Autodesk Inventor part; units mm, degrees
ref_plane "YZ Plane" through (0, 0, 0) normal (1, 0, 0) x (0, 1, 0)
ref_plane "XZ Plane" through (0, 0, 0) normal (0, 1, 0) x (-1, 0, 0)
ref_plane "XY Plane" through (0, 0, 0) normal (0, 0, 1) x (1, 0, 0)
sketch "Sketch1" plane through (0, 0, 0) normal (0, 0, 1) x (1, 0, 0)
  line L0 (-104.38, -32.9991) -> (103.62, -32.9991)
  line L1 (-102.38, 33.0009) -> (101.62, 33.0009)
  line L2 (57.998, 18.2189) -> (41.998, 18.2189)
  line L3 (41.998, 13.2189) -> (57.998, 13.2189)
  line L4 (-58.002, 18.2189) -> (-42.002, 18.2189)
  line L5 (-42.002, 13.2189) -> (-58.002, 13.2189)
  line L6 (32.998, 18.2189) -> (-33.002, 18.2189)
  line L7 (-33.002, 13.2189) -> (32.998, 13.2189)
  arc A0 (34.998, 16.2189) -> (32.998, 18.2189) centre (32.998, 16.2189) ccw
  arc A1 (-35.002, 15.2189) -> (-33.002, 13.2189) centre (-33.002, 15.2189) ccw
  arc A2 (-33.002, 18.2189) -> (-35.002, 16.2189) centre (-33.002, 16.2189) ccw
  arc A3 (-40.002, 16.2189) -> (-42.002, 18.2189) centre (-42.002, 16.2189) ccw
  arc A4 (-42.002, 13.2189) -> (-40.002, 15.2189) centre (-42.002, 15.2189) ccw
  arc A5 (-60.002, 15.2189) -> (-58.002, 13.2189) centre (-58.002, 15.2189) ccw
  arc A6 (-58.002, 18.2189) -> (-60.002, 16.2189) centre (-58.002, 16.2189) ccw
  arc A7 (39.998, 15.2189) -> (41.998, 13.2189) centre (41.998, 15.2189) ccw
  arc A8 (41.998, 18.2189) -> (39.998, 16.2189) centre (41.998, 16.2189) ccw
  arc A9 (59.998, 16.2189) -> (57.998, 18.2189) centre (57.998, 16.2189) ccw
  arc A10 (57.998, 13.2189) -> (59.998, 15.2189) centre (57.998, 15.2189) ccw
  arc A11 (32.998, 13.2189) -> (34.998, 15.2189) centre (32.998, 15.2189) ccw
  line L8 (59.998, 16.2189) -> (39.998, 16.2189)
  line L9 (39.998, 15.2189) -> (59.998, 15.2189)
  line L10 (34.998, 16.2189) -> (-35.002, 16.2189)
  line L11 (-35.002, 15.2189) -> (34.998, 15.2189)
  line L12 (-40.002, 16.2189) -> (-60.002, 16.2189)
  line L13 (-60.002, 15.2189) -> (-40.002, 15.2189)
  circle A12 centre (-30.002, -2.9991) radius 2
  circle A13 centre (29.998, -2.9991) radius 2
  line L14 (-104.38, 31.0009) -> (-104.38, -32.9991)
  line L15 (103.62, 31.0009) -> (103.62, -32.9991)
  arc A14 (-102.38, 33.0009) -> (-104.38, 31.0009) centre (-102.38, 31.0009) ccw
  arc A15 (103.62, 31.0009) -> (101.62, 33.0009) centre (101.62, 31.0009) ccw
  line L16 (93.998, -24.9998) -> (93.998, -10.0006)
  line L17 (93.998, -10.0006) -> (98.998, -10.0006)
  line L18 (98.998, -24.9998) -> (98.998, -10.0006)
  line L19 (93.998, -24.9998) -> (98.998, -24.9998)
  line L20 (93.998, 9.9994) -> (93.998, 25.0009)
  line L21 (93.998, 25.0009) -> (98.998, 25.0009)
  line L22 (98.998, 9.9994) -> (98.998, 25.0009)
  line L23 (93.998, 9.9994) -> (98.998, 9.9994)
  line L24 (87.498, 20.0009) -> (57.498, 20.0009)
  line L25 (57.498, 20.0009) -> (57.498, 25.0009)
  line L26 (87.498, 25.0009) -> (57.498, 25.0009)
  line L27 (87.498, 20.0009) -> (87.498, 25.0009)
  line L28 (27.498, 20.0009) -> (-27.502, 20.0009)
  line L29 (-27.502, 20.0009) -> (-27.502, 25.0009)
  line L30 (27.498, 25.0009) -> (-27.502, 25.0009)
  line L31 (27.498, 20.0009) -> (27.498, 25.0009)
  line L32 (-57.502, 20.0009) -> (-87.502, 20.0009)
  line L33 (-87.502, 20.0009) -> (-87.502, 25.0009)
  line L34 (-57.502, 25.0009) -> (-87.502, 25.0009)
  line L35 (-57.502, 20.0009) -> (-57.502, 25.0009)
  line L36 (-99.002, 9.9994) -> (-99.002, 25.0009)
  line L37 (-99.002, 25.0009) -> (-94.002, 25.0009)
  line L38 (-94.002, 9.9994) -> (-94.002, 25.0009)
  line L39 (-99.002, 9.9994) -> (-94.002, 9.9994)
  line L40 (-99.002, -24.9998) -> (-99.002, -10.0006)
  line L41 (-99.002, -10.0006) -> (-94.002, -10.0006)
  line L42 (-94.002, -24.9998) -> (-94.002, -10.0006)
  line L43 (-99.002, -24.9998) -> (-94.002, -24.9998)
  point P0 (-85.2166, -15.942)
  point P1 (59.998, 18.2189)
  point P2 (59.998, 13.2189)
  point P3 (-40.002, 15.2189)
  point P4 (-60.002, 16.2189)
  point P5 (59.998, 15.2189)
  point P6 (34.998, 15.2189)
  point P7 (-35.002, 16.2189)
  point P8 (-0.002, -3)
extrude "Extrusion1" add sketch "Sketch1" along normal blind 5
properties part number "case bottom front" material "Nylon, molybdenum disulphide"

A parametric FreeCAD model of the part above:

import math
import FreeCAD as App
import Part
import Sketcher

V = App.Vector

doc = App.newDocument("Part")
body = doc.addObject("PartDesign::Body", "Body")

sketch1 = body.newObject("Sketcher::SketchObject", "Sketch")
sketch1.AttachmentSupport = (doc.getObject("XY_Plane"), [""])
sketch1.MapMode = "FlatFace"
sketch1.addGeometry(Part.LineSegment(V(-104.38, 31.0009, 0), V(-104.38, -32.9991, 0)), False)
sketch1.addGeometry(Part.LineSegment(V(-104.38, -32.9991, 0), V(103.62, -32.9991, 0)), False)
sketch1.addGeometry(Part.LineSegment(V(103.62, -32.9991, 0), V(103.62, 31.0009, 0)), False)
sketch1.addGeometry(Part.ArcOfCircle(Part.Circle(V(101.62, 31.0009, 0), V(0, 0, 1), 2), math.radians(0), math.radians(90)), False)
sketch1.addGeometry(Part.LineSegment(V(101.62, 33.0009, 0), V(-102.38, 33.0009, 0)), False)
sketch1.addGeometry(Part.ArcOfCircle(Part.Circle(V(-102.38, 31.0009, 0), V(0, 0, 1), 2), math.radians(90), math.radians(180)), False)
sketch1.addGeometry(Part.LineSegment(V(-94.002, -24.9998, 0), V(-99.002, -24.9998, 0)), False)
sketch1.addGeometry(Part.LineSegment(V(-99.002, -24.9998, 0), V(-99.002, -10.0006, 0)), False)
sketch1.addGeometry(Part.LineSegment(V(-99.002, -10.0006, 0), V(-94.002, -10.0006, 0)), False)
sketch1.addGeometry(Part.LineSegment(V(-94.002, -10.0006, 0), V(-94.002, -24.9998, 0)), False)
sketch1.addGeometry(Part.Circle(V(-30.002, -2.9991, 0), V(0, 0, 1), 2), False)
sketch1.addGeometry(Part.LineSegment(V(98.998, -24.9998, 0), V(93.998, -24.9998, 0)), False)
sketch1.addGeometry(Part.LineSegment(V(93.998, -24.9998, 0), V(93.998, -10.0006, 0)), False)
sketch1.addGeometry(Part.LineSegment(V(93.998, -10.0006, 0), V(98.998, -10.0006, 0)), False)
sketch1.addGeometry(Part.LineSegment(V(98.998, -10.0006, 0), V(98.998, -24.9998, 0)), False)
sketch1.addGeometry(Part.Circle(V(29.998, -2.9991, 0), V(0, 0, 1), 2), False)
sketch1.addGeometry(Part.ArcOfCircle(Part.Circle(V(-42.002, 15.2189, 0), V(0, 0, 1), 2), math.radians(-90), math.radians(0)), False)
sketch1.addGeometry(Part.LineSegment(V(-42.002, 13.2189, 0), V(-58.002, 13.2189, 0)), False)
sketch1.addGeometry(Part.ArcOfCircle(Part.Circle(V(-58.002, 15.2189, 0), V(0, 0, 1), 2), math.radians(180), math.radians(270)), False)
sketch1.addGeometry(Part.LineSegment(V(-60.002, 15.2189, 0), V(-40.002, 15.2189, 0)), False)
sketch1.addGeometry(Part.LineSegment(V(-94.002, 9.9994, 0), V(-99.002, 9.9994, 0)), False)
sketch1.addGeometry(Part.LineSegment(V(-99.002, 9.9994, 0), V(-99.002, 25.0009, 0)), False)
sketch1.addGeometry(Part.LineSegment(V(-99.002, 25.0009, 0), V(-94.002, 25.0009, 0)), False)
sketch1.addGeometry(Part.LineSegment(V(-94.002, 25.0009, 0), V(-94.002, 9.9994, 0)), False)
sketch1.addGeometry(Part.LineSegment(V(-57.502, 25.0009, 0), V(-57.502, 20.0009, 0)), False)
sketch1.addGeometry(Part.LineSegment(V(-57.502, 20.0009, 0), V(-87.502, 20.0009, 0)), False)
sketch1.addGeometry(Part.LineSegment(V(-87.502, 20.0009, 0), V(-87.502, 25.0009, 0)), False)
sketch1.addGeometry(Part.LineSegment(V(-87.502, 25.0009, 0), V(-57.502, 25.0009, 0)), False)
sketch1.addGeometry(Part.ArcOfCircle(Part.Circle(V(-58.002, 16.2189, 0), V(0, 0, 1), 2), math.radians(90), math.radians(180)), False)
sketch1.addGeometry(Part.LineSegment(V(-58.002, 18.2189, 0), V(-42.002, 18.2189, 0)), False)
sketch1.addGeometry(Part.ArcOfCircle(Part.Circle(V(-42.002, 16.2189, 0), V(0, 0, 1), 2), math.radians(0), math.radians(90)), False)
sketch1.addGeometry(Part.LineSegment(V(-40.002, 16.2189, 0), V(-60.002, 16.2189, 0)), False)
sketch1.addGeometry(Part.LineSegment(V(32.998, 13.2189, 0), V(-33.002, 13.2189, 0)), False)
sketch1.addGeometry(Part.ArcOfCircle(Part.Circle(V(-33.002, 15.2189, 0), V(0, 0, 1), 2), math.radians(180), math.radians(270)), False)
sketch1.addGeometry(Part.LineSegment(V(-35.002, 15.2189, 0), V(34.998, 15.2189, 0)), False)
sketch1.addGeometry(Part.ArcOfCircle(Part.Circle(V(32.998, 15.2189, 0), V(0, 0, 1), 2), math.radians(-90), math.radians(0)), False)
sketch1.addGeometry(Part.LineSegment(V(57.998, 13.2189, 0), V(41.998, 13.2189, 0)), False)
sketch1.addGeometry(Part.ArcOfCircle(Part.Circle(V(41.998, 15.2189, 0), V(0, 0, 1), 2), math.radians(180), math.radians(270)), False)
sketch1.addGeometry(Part.LineSegment(V(39.998, 15.2189, 0), V(59.998, 15.2189, 0)), False)
sketch1.addGeometry(Part.ArcOfCircle(Part.Circle(V(57.998, 15.2189, 0), V(0, 0, 1), 2), math.radians(-90), math.radians(0)), False)
sketch1.addGeometry(Part.LineSegment(V(-33.002, 18.2189, 0), V(32.998, 18.2189, 0)), False)
sketch1.addGeometry(Part.ArcOfCircle(Part.Circle(V(32.998, 16.2189, 0), V(0, 0, 1), 2), math.radians(0), math.radians(90)), False)
sketch1.addGeometry(Part.LineSegment(V(34.998, 16.2189, 0), V(-35.002, 16.2189, 0)), False)
sketch1.addGeometry(Part.ArcOfCircle(Part.Circle(V(-33.002, 16.2189, 0), V(0, 0, 1), 2), math.radians(90), math.radians(180)), False)
sketch1.addGeometry(Part.LineSegment(V(27.498, 25.0009, 0), V(27.498, 20.0009, 0)), False)
sketch1.addGeometry(Part.LineSegment(V(27.498, 20.0009, 0), V(-27.502, 20.0009, 0)), False)
sketch1.addGeometry(Part.LineSegment(V(-27.502, 20.0009, 0), V(-27.502, 25.0009, 0)), False)
sketch1.addGeometry(Part.LineSegment(V(-27.502, 25.0009, 0), V(27.498, 25.0009, 0)), False)
sketch1.addGeometry(Part.LineSegment(V(41.998, 18.2189, 0), V(57.998, 18.2189, 0)), False)
sketch1.addGeometry(Part.ArcOfCircle(Part.Circle(V(57.998, 16.2189, 0), V(0, 0, 1), 2), math.radians(0), math.radians(90)), False)
sketch1.addGeometry(Part.LineSegment(V(59.998, 16.2189, 0), V(39.998, 16.2189, 0)), False)
sketch1.addGeometry(Part.ArcOfCircle(Part.Circle(V(41.998, 16.2189, 0), V(0, 0, 1), 2), math.radians(90), math.radians(180)), False)
sketch1.addGeometry(Part.LineSegment(V(87.498, 25.0009, 0), V(87.498, 20.0009, 0)), False)
sketch1.addGeometry(Part.LineSegment(V(87.498, 20.0009, 0), V(57.498, 20.0009, 0)), False)
sketch1.addGeometry(Part.LineSegment(V(57.498, 20.0009, 0), V(57.498, 25.0009, 0)), False)
sketch1.addGeometry(Part.LineSegment(V(57.498, 25.0009, 0), V(87.498, 25.0009, 0)), False)
sketch1.addGeometry(Part.LineSegment(V(98.998, 9.9994, 0), V(93.998, 9.9994, 0)), False)
sketch1.addGeometry(Part.LineSegment(V(93.998, 9.9994, 0), V(93.998, 25.0009, 0)), False)
sketch1.addGeometry(Part.LineSegment(V(93.998, 25.0009, 0), V(98.998, 25.0009, 0)), False)
sketch1.addGeometry(Part.LineSegment(V(98.998, 25.0009, 0), V(98.998, 9.9994, 0)), False)
sketch1.addConstraint(Sketcher.Constraint("Coincident", 0, 2, 1, 1))
sketch1.addConstraint(Sketcher.Constraint("Coincident", 1, 2, 2, 1))
sketch1.addConstraint(Sketcher.Constraint("Tangent", 2, 2, 3, 1))
sketch1.addConstraint(Sketcher.Constraint("Tangent", 3, 2, 4, 1))
sketch1.addConstraint(Sketcher.Constraint("Tangent", 4, 2, 5, 1))
sketch1.addConstraint(Sketcher.Constraint("Tangent", 5, 2, 0, 1))
sketch1.addConstraint(Sketcher.Constraint("Coincident", 6, 2, 7, 1))
sketch1.addConstraint(Sketcher.Constraint("Coincident", 7, 2, 8, 1))
sketch1.addConstraint(Sketcher.Constraint("Coincident", 8, 2, 9, 1))
sketch1.addConstraint(Sketcher.Constraint("Coincident", 9, 2, 6, 1))
sketch1.addConstraint(Sketcher.Constraint("Coincident", 11, 2, 12, 1))
sketch1.addConstraint(Sketcher.Constraint("Coincident", 12, 2, 13, 1))
sketch1.addConstraint(Sketcher.Constraint("Coincident", 13, 2, 14, 1))
sketch1.addConstraint(Sketcher.Constraint("Coincident", 14, 2, 11, 1))
sketch1.addConstraint(Sketcher.Constraint("Tangent", 16, 1, 17, 1))
sketch1.addConstraint(Sketcher.Constraint("Tangent", 17, 2, 18, 2))
sketch1.addConstraint(Sketcher.Constraint("Coincident", 18, 1, 19, 1))
sketch1.addConstraint(Sketcher.Constraint("Coincident", 19, 2, 16, 2))
sketch1.addConstraint(Sketcher.Constraint("Coincident", 20, 2, 21, 1))
sketch1.addConstraint(Sketcher.Constraint("Coincident", 21, 2, 22, 1))
sketch1.addConstraint(Sketcher.Constraint("Coincident", 22, 2, 23, 1))
sketch1.addConstraint(Sketcher.Constraint("Coincident", 23, 2, 20, 1))
sketch1.addConstraint(Sketcher.Constraint("Coincident", 24, 2, 25, 1))
sketch1.addConstraint(Sketcher.Constraint("Coincident", 25, 2, 26, 1))
sketch1.addConstraint(Sketcher.Constraint("Coincident", 26, 2, 27, 1))
sketch1.addConstraint(Sketcher.Constraint("Coincident", 27, 2, 24, 1))
sketch1.addConstraint(Sketcher.Constraint("Tangent", 28, 1, 29, 1))
sketch1.addConstraint(Sketcher.Constraint("Tangent", 29, 2, 30, 2))
sketch1.addConstraint(Sketcher.Constraint("Coincident", 30, 1, 31, 1))
sketch1.addConstraint(Sketcher.Constraint("Coincident", 31, 2, 28, 2))
sketch1.addConstraint(Sketcher.Constraint("Tangent", 32, 2, 33, 2))
sketch1.addConstraint(Sketcher.Constraint("Coincident", 33, 1, 34, 1))
sketch1.addConstraint(Sketcher.Constraint("Coincident", 34, 2, 35, 2))
sketch1.addConstraint(Sketcher.Constraint("Tangent", 35, 1, 32, 1))
sketch1.addConstraint(Sketcher.Constraint("Tangent", 36, 2, 37, 2))
sketch1.addConstraint(Sketcher.Constraint("Coincident", 37, 1, 38, 1))
sketch1.addConstraint(Sketcher.Constraint("Coincident", 38, 2, 39, 2))
sketch1.addConstraint(Sketcher.Constraint("Tangent", 39, 1, 36, 1))
sketch1.addConstraint(Sketcher.Constraint("Tangent", 40, 2, 41, 2))
sketch1.addConstraint(Sketcher.Constraint("Coincident", 41, 1, 42, 1))
sketch1.addConstraint(Sketcher.Constraint("Coincident", 42, 2, 43, 2))
sketch1.addConstraint(Sketcher.Constraint("Tangent", 43, 1, 40, 1))
sketch1.addConstraint(Sketcher.Constraint("Coincident", 44, 2, 45, 1))
sketch1.addConstraint(Sketcher.Constraint("Coincident", 45, 2, 46, 1))
sketch1.addConstraint(Sketcher.Constraint("Coincident", 46, 2, 47, 1))
sketch1.addConstraint(Sketcher.Constraint("Coincident", 47, 2, 44, 1))
sketch1.addConstraint(Sketcher.Constraint("Tangent", 48, 2, 49, 2))
sketch1.addConstraint(Sketcher.Constraint("Coincident", 49, 1, 50, 1))
sketch1.addConstraint(Sketcher.Constraint("Coincident", 50, 2, 51, 2))
sketch1.addConstraint(Sketcher.Constraint("Tangent", 51, 1, 48, 1))
sketch1.addConstraint(Sketcher.Constraint("Coincident", 52, 2, 53, 1))
sketch1.addConstraint(Sketcher.Constraint("Coincident", 53, 2, 54, 1))
sketch1.addConstraint(Sketcher.Constraint("Coincident", 54, 2, 55, 1))
sketch1.addConstraint(Sketcher.Constraint("Coincident", 55, 2, 52, 1))
sketch1.addConstraint(Sketcher.Constraint("Coincident", 56, 2, 57, 1))
sketch1.addConstraint(Sketcher.Constraint("Coincident", 57, 2, 58, 1))
sketch1.addConstraint(Sketcher.Constraint("Coincident", 58, 2, 59, 1))
sketch1.addConstraint(Sketcher.Constraint("Coincident", 59, 2, 56, 1))
sketch1.addConstraint(Sketcher.Constraint("Vertical", 0))
sketch1.addConstraint(Sketcher.Constraint("Horizontal", 1))
sketch1.addConstraint(Sketcher.Constraint("Vertical", 2))
sketch1.addConstraint(Sketcher.Constraint("Horizontal", 4))
sketch1.addConstraint(Sketcher.Constraint("Horizontal", 6))
sketch1.addConstraint(Sketcher.Constraint("Vertical", 7))
sketch1.addConstraint(Sketcher.Constraint("Horizontal", 8))
sketch1.addConstraint(Sketcher.Constraint("Vertical", 9))
sketch1.addConstraint(Sketcher.Constraint("Horizontal", 11))
sketch1.addConstraint(Sketcher.Constraint("Vertical", 12))
sketch1.addConstraint(Sketcher.Constraint("Horizontal", 13))
sketch1.addConstraint(Sketcher.Constraint("Vertical", 14))
sketch1.addConstraint(Sketcher.Constraint("Horizontal", 17))
sketch1.addConstraint(Sketcher.Constraint("Horizontal", 19))
sketch1.addConstraint(Sketcher.Constraint("Horizontal", 20))
sketch1.addConstraint(Sketcher.Constraint("Vertical", 21))
sketch1.addConstraint(Sketcher.Constraint("Horizontal", 22))
sketch1.addConstraint(Sketcher.Constraint("Vertical", 23))
sketch1.addConstraint(Sketcher.Constraint("Vertical", 24))
sketch1.addConstraint(Sketcher.Constraint("Horizontal", 25))
sketch1.addConstraint(Sketcher.Constraint("Vertical", 26))
sketch1.addConstraint(Sketcher.Constraint("Horizontal", 27))
sketch1.addConstraint(Sketcher.Constraint("Horizontal", 29))
sketch1.addConstraint(Sketcher.Constraint("Horizontal", 31))
sketch1.addConstraint(Sketcher.Constraint("Horizontal", 32))
sketch1.addConstraint(Sketcher.Constraint("Horizontal", 34))
sketch1.addConstraint(Sketcher.Constraint("Horizontal", 36))
sketch1.addConstraint(Sketcher.Constraint("Horizontal", 38))
sketch1.addConstraint(Sketcher.Constraint("Horizontal", 40))
sketch1.addConstraint(Sketcher.Constraint("Horizontal", 42))
sketch1.addConstraint(Sketcher.Constraint("Vertical", 44))
sketch1.addConstraint(Sketcher.Constraint("Horizontal", 45))
sketch1.addConstraint(Sketcher.Constraint("Vertical", 46))
sketch1.addConstraint(Sketcher.Constraint("Horizontal", 47))
sketch1.addConstraint(Sketcher.Constraint("Horizontal", 48))
sketch1.addConstraint(Sketcher.Constraint("Horizontal", 50))
sketch1.addConstraint(Sketcher.Constraint("Vertical", 52))
sketch1.addConstraint(Sketcher.Constraint("Horizontal", 53))
sketch1.addConstraint(Sketcher.Constraint("Vertical", 54))
sketch1.addConstraint(Sketcher.Constraint("Horizontal", 55))
sketch1.addConstraint(Sketcher.Constraint("Horizontal", 56))
sketch1.addConstraint(Sketcher.Constraint("Vertical", 57))
sketch1.addConstraint(Sketcher.Constraint("Horizontal", 58))
sketch1.addConstraint(Sketcher.Constraint("Vertical", 59))
sketch1.addConstraint(Sketcher.Constraint("Equal", 3, 5))
sketch1.addConstraint(Sketcher.Constraint("Equal", 5, 10))
sketch1.addConstraint(Sketcher.Constraint("Equal", 10, 15))
sketch1.addConstraint(Sketcher.Constraint("Equal", 15, 16))
sketch1.addConstraint(Sketcher.Constraint("Equal", 16, 18))
sketch1.addConstraint(Sketcher.Constraint("Equal", 18, 28))
sketch1.addConstraint(Sketcher.Constraint("Equal", 28, 30))
sketch1.addConstraint(Sketcher.Constraint("Equal", 30, 33))
sketch1.addConstraint(Sketcher.Constraint("Equal", 33, 35))
sketch1.addConstraint(Sketcher.Constraint("Equal", 35, 37))
sketch1.addConstraint(Sketcher.Constraint("Equal", 37, 39))
sketch1.addConstraint(Sketcher.Constraint("Equal", 39, 41))
sketch1.addConstraint(Sketcher.Constraint("Equal", 41, 43))
sketch1.addConstraint(Sketcher.Constraint("Equal", 43, 49))
sketch1.addConstraint(Sketcher.Constraint("Equal", 49, 51))
sketch1.addConstraint(Sketcher.Constraint("Horizontal", 10, 3, 15, 3))
sketch1.addConstraint(Sketcher.Constraint("Horizontal", 18, 3, 33, 3))
sketch1.addConstraint(Sketcher.Constraint("Horizontal", 35, 3, 37, 3))
sketch1.addConstraint(Sketcher.Constraint("Horizontal", 30, 3, 41, 3))
sketch1.addConstraint(Sketcher.Constraint("Horizontal", 43, 3, 49, 3))
sketch1.addConstraint(Sketcher.Constraint("Horizontal", 9, 2, 11, 2))
sketch1.addConstraint(Sketcher.Constraint("Horizontal", 8, 2, 12, 2))
sketch1.addConstraint(Sketcher.Constraint("Horizontal", 39, 3, 18, 1))
sketch1.addConstraint(Sketcher.Constraint("Horizontal", 22, 2, 26, 2))
sketch1.addConstraint(Sketcher.Constraint("Horizontal", 51, 3, 30, 1))
sketch1.addConstraint(Sketcher.Constraint("Horizontal", 19, 2, 33, 1))
sketch1.addConstraint(Sketcher.Constraint("Horizontal", 34, 2, 37, 1))
sketch1.addConstraint(Sketcher.Constraint("Horizontal", 31, 2, 41, 1))
sketch1.addConstraint(Sketcher.Constraint("Horizontal", 25, 2, 44, 2))
sketch1.addConstraint(Sketcher.Constraint("Horizontal", 27, 2, 46, 2))
sketch1.addConstraint(Sketcher.Constraint("Horizontal", 42, 2, 49, 1))
sketch1.addConstraint(Sketcher.Constraint("Horizontal", 45, 2, 52, 2))
sketch1.addConstraint(Sketcher.Constraint("Horizontal", 47, 2, 54, 2))
sketch1.addConstraint(Sketcher.Constraint("Horizontal", 23, 2, 56, 2))
sketch1.addConstraint(Sketcher.Constraint("Horizontal", 55, 2, 57, 2))
sketch1.addConstraint(Sketcher.Constraint("Vertical", 18, 3, 28, 3))
sketch1.addConstraint(Sketcher.Constraint("Vertical", 16, 3, 30, 3))
sketch1.addConstraint(Sketcher.Constraint("Vertical", 35, 3, 41, 3))
sketch1.addConstraint(Sketcher.Constraint("Vertical", 33, 3, 43, 3))
sketch1.addConstraint(Sketcher.Constraint("Vertical", 39, 3, 49, 3))
sketch1.addConstraint(Sketcher.Constraint("Vertical", 37, 3, 51, 3))
sketch1.addConstraint(Sketcher.Constraint("Vertical", 7, 2, 20, 2))
sketch1.addConstraint(Sketcher.Constraint("Vertical", 9, 2, 22, 2))
sketch1.addConstraint(Sketcher.Constraint("Vertical", 12, 2, 56, 2))
sketch1.addConstraint(Sketcher.Constraint("Vertical", 14, 2, 58, 2))
sketch1.addConstraint(Sketcher.Constraint("Equal", 8, 11))
sketch1.addConstraint(Sketcher.Constraint("Equal", 29, 36))
sketch1.addConstraint(Sketcher.Constraint("Equal", 27, 53))
sketch1.addConstraint(Sketcher.Constraint("Equal", 58, 24))
sketch1.addConstraint(Sketcher.Constraint("Diameter", 10, 4.0))
sketch1.addConstraint(Sketcher.Constraint("DistanceX", 1, 1, 1, 2, 208.0))
sketch1.addConstraint(Sketcher.Constraint("DistanceX", 6, 2, 6, 1, 5.0))
sketch1.addConstraint(Sketcher.Constraint("DistanceX", 17, 2, 17, 1, 16.0))
sketch1.addConstraint(Sketcher.Constraint("DistanceX", 25, 2, 25, 1, 30.0))
sketch1.addConstraint(Sketcher.Constraint("DistanceX", 32, 2, 32, 1, 66.0))
sketch1.addConstraint(Sketcher.Constraint("DistanceX", 45, 2, 45, 1, 55.0))
sketch1.addConstraint(Sketcher.Constraint("DistanceY", 0, 2, 0, 1, 64.0))
sketch1.addConstraint(Sketcher.Constraint("DistanceX", -1, 1, 3, 3, 101.62))
sketch1.addConstraint(Sketcher.Constraint("DistanceY", 7, 1, 7, 2, 14.9992))
sketch1.addConstraint(Sketcher.Constraint("DistanceY", 21, 1, 21, 2, 15.0015))
sketch1.addConstraint(Sketcher.Constraint("DistanceY", -1, 1, 3, 3, 31.001))
sketch1.addConstraint(Sketcher.Constraint("DistanceX", 10, 3, -1, 1, 30.002))
sketch1.addConstraint(Sketcher.Constraint("DistanceY", 10, 3, -1, 1, 2.999))
sketch1.addConstraint(Sketcher.Constraint("DistanceX", -1, 1, 15, 3, 29.998))
sketch1.addConstraint(Sketcher.Constraint("DistanceX", 16, 3, -1, 1, 42.002))
sketch1.addConstraint(Sketcher.Constraint("DistanceY", -1, 1, 16, 3, 15.219))
sketch1.addConstraint(Sketcher.Constraint("DistanceY", -1, 1, 28, 3, 16.219))
sketch1.addConstraint(Sketcher.Constraint("DistanceX", 33, 3, -1, 1, 33.002))
sketch1.addConstraint(Sketcher.Constraint("DistanceX", -1, 1, 37, 3, 41.998))
sketch1.addConstraint(Sketcher.Constraint("DistanceX", 6, 2, -1, 1, 99.002))
sketch1.addConstraint(Sketcher.Constraint("DistanceX", -1, 1, 11, 2, 93.998))
sketch1.addConstraint(Sketcher.Constraint("DistanceY", -1, 1, 21, 2, 25.001))
sketch1.addConstraint(Sketcher.Constraint("DistanceX", 24, 2, -1, 1, 57.502))
sketch1.addConstraint(Sketcher.Constraint("DistanceX", -1, 1, 44, 2, 27.498))
sketch1.addConstraint(Sketcher.Constraint("DistanceX", -1, 1, 52, 2, 87.498))
sketch1.addConstraint(Sketcher.Constraint("DistanceY", 6, 2, -1, 1, 24.9998))
pad1 = body.newObject("PartDesign::Pad", "Pad")
pad1.Profile = sketch1
pad1.Length = 5

doc.recompute()
